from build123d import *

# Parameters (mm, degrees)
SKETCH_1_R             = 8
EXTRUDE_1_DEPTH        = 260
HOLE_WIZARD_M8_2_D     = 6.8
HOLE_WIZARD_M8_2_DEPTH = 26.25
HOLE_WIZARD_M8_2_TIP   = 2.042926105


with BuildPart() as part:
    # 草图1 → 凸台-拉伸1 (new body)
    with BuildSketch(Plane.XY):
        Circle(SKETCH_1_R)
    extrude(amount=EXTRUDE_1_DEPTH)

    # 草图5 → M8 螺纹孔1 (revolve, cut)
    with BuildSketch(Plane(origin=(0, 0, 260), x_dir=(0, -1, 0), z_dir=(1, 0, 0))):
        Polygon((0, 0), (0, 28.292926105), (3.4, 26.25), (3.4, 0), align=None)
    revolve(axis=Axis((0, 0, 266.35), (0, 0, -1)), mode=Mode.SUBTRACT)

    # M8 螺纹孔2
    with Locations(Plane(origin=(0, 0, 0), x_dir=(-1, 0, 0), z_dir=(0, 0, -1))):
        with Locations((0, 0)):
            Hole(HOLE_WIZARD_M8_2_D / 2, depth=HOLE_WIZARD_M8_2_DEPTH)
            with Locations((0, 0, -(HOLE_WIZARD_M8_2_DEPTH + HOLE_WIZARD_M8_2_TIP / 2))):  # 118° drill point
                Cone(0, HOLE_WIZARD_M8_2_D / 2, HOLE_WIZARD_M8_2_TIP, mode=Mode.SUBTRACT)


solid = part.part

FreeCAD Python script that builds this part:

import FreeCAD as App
import Part
import Sketcher
Q = App.Units.Quantity

doc = App.newDocument("Part")
body = doc.addObject("PartDesign::Body", "Body")

# Sketch on XY plane
sketch1 = body.newObject("Sketcher::SketchObject", "Sketch")
sketch1.AttachmentSupport = (doc.getObject("XY_Plane"), [""])
sketch1.MapMode = "FlatFace"
sketch1.addGeometry(Part.Circle(App.Vector(0, 0, 0), App.Vector(0, 0, 1), 8), False)
sketch1.addConstraint([
    Sketcher.Constraint("Coincident", 0, 3, -1, 1),
    Sketcher.Constraint("Diameter", 0, 16.0),
])
pad1 = body.newObject("PartDesign::Pad", "Pad")
pad1.Profile = sketch1
pad1.Length = 260

# Sketch on YZ plane
sketch2 = body.newObject("Sketcher::SketchObject", "Sketch001")
sketch2.AttachmentSupport = (doc.getObject("YZ_Plane"), [""])
sketch2.MapMode = "FlatFace"
sketch2.addGeometry([
    Part.LineSegment(App.Vector(0, 231.707074, 0), App.Vector(0, 260, 0)),
    Part.LineSegment(App.Vector(0, 260, 0), App.Vector(-3.4, 260, 0)),
    Part.LineSegment(App.Vector(-3.4, 260, 0), App.Vector(-3.4, 233.75, 0)),
    Part.LineSegment(App.Vector(-3.4, 233.75, 0), App.Vector(0, 231.707074, 0)),
], False)
sketch2.addConstraint([
    Sketcher.Constraint("Coincident", 0, 2, 1, 1),
    Sketcher.Constraint("Coincident", 1, 2, 2, 1),
    Sketcher.Constraint("Coincident", 2, 2, 3, 1),
    Sketcher.Constraint("Coincident", 3, 2, 0, 1),
    Sketcher.Constraint("Vertical", 0),
    Sketcher.Constraint("Horizontal", 1),
    Sketcher.Constraint("Vertical", 2),
    Sketcher.Constraint("PointOnObject", 0, 2, -2),
    Sketcher.Constraint("Angle", 3, Q("-31 deg")),
    Sketcher.Constraint("DistanceX", 1, 2, 1, 1, 3.4),
    Sketcher.Constraint("DistanceY", -1, 1, 0, 2, 260.0),
    Sketcher.Constraint("DistanceY", 2, 2, 2, 1, 26.25),
])
groove = body.newObject("PartDesign::Groove", "Groove")
groove.Profile = sketch2
groove.ReferenceAxis = (sketch2, ["V_Axis"])
groove.Angle = 360

# Sketch on XY plane
sketch3 = body.newObject("Sketcher::SketchObject", "Sketch002")
sketch3.AttachmentSupport = (doc.getObject("XY_Plane"), [""])
sketch3.MapMode = "FlatFace"
sketch3.addGeometry(Part.Circle(App.Vector(0, 0, 0), App.Vector(0, 0, 1), 3.4), False)
sketch3.addConstraint([
    Sketcher.Constraint("Coincident", 0, 3, -1, 1),
    Sketcher.Constraint("Diameter", 0, 6.8),
])
doc.recompute()
hole = body.newObject("PartDesign::Hole", "Hole")
hole.Profile = sketch3
hole.ThreadType = "None"
hole.Diameter = 6.8
hole.DepthType = "Dimension"
hole.Depth = 26.25
hole.DrillPoint = "Angled"
hole.DrillPointAngle = 118
hole.Reversed = True

doc.recompute()
